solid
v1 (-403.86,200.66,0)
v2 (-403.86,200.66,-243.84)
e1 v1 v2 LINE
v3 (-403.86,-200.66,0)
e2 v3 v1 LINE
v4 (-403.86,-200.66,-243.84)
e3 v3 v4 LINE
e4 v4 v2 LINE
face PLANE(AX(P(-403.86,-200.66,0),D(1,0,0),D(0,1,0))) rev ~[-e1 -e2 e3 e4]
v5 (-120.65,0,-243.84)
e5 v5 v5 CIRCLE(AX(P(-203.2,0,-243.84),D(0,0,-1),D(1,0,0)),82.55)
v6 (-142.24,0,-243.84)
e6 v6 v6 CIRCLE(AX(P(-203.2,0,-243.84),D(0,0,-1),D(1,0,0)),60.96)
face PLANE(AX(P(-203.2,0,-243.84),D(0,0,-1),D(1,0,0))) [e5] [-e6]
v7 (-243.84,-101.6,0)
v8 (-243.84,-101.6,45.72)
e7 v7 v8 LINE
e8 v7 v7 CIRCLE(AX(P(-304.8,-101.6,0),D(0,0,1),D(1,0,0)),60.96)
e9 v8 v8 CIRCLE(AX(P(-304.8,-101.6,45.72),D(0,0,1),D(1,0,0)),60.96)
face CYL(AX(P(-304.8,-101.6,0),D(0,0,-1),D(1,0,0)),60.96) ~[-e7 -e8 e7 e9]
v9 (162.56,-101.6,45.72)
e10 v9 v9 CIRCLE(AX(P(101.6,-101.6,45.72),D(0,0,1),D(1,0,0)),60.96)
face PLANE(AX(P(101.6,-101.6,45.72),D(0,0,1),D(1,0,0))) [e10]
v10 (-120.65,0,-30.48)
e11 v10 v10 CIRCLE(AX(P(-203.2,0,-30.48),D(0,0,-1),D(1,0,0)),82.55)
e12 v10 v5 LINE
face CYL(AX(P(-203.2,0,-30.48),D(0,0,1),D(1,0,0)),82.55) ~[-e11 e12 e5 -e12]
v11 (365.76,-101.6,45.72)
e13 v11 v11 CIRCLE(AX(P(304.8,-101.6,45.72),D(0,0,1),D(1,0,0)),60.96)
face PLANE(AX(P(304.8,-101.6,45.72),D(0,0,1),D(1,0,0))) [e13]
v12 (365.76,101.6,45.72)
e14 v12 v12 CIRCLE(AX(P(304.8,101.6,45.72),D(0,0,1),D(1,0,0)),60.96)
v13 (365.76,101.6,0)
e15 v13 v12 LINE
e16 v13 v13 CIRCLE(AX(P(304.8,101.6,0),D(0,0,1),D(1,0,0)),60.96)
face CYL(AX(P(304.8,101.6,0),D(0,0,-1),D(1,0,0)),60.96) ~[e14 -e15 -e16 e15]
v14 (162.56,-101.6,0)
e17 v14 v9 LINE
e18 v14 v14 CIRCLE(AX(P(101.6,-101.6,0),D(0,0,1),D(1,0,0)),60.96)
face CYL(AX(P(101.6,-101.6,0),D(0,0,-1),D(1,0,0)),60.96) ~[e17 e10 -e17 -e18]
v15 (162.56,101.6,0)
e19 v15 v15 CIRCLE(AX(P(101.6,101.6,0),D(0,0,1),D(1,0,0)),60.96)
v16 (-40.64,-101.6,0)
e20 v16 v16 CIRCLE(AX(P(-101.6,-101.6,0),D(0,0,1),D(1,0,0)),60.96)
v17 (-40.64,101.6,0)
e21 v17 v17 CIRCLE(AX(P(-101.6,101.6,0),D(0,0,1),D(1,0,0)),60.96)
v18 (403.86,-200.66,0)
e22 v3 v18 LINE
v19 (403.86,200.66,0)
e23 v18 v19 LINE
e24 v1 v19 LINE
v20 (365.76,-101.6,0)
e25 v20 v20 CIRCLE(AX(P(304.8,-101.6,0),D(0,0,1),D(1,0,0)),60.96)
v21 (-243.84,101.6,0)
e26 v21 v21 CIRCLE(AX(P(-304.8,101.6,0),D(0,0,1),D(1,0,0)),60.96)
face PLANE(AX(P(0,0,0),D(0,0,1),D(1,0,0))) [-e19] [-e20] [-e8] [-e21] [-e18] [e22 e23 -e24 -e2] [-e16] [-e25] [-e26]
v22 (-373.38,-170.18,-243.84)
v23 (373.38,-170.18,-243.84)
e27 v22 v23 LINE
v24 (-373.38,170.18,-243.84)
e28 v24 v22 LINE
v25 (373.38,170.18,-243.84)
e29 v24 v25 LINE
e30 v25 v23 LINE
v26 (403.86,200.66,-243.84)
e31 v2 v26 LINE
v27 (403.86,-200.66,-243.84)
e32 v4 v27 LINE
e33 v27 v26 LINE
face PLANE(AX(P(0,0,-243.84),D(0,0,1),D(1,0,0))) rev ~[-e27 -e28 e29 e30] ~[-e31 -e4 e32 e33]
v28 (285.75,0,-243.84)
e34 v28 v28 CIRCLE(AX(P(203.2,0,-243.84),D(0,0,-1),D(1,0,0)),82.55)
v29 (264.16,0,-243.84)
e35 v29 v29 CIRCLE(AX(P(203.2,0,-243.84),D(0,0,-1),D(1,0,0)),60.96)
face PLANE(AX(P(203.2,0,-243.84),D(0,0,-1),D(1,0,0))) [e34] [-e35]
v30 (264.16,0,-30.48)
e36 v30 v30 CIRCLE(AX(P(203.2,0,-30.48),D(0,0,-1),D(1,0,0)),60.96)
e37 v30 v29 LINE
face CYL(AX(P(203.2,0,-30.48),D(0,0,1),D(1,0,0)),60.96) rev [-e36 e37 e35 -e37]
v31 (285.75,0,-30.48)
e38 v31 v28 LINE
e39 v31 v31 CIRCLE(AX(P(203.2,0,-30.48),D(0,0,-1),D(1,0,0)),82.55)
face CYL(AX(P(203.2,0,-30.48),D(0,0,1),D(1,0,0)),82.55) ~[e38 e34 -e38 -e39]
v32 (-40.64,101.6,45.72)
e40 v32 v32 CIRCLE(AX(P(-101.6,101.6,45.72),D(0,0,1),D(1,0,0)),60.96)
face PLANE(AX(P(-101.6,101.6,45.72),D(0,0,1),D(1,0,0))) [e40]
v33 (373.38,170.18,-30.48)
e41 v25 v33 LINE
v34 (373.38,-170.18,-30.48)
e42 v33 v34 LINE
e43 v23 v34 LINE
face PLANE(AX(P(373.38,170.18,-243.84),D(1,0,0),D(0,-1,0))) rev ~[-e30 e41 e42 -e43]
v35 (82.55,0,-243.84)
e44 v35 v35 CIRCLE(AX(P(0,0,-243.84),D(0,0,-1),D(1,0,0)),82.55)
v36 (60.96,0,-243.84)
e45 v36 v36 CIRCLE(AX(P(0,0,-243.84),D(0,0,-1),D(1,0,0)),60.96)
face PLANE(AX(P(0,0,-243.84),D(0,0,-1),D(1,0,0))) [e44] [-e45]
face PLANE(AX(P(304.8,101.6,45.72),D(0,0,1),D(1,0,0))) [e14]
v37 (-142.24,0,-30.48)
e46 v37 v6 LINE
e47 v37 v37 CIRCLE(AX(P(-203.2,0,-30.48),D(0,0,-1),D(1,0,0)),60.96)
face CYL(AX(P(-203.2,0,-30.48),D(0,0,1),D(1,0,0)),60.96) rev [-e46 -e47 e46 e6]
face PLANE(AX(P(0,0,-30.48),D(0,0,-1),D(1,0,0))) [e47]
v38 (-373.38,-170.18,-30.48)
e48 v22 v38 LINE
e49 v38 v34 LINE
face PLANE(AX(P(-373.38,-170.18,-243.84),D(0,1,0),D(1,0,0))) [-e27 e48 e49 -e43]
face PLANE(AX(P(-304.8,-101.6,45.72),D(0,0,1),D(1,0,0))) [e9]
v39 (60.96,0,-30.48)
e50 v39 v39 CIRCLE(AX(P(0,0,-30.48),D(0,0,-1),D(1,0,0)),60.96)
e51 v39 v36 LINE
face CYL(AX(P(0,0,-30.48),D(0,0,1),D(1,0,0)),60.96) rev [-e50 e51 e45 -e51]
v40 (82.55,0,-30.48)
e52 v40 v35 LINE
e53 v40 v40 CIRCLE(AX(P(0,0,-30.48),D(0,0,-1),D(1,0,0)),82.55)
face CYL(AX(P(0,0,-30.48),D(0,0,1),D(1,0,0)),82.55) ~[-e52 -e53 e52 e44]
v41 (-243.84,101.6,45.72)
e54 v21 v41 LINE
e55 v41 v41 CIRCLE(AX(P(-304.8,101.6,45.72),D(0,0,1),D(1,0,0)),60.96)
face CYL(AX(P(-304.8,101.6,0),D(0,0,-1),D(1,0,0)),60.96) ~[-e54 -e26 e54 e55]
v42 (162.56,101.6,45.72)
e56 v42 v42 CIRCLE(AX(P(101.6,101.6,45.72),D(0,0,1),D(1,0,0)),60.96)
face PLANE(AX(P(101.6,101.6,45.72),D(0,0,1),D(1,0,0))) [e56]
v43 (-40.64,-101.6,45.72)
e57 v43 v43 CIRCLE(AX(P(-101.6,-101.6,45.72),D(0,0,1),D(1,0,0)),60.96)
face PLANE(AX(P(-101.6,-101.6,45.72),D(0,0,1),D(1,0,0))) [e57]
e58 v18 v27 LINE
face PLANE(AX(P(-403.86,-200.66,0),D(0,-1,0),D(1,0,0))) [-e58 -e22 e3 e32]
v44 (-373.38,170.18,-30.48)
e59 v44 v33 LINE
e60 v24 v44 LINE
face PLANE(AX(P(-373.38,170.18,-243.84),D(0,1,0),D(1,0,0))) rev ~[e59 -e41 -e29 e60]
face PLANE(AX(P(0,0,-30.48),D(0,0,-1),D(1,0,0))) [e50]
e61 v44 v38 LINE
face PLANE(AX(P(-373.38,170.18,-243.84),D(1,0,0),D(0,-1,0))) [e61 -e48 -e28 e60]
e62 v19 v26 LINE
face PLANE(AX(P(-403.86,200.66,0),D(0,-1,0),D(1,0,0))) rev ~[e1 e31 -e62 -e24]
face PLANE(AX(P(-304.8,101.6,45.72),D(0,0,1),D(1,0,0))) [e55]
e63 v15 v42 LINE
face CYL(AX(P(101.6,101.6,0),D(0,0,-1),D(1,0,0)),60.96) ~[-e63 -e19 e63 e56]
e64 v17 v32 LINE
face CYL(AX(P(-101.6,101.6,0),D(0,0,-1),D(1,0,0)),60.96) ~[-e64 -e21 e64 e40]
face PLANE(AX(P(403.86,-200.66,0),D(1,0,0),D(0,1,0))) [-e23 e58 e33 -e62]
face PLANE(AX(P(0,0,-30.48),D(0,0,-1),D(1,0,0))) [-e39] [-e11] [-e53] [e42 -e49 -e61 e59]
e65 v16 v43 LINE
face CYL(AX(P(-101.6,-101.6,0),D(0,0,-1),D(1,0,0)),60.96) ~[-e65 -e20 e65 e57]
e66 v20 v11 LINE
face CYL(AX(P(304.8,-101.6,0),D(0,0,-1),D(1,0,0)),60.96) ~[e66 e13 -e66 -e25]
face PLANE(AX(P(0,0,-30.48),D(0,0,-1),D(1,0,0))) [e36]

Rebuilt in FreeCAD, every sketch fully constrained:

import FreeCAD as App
import Part
import Sketcher

V = App.Vector
Q = App.Units.Quantity

doc = App.newDocument("Part")
params = doc.addObject("Spreadsheet::Sheet", "Params")
for row, (alias, value) in enumerate([
    ("sketch1_width", "31.8 in"),
    ("sketch1_height", "15.8 in"),
    ("pad1_length", "9.6 in"),
    ("sketch2_diameter", "4.8 in"),
    ("pad2_length", "1.8 in"),
    ("sketch3_width", "29.4 in"),
    ("sketch3_height", "13.4 in"),
    ("pocket1_length", "8.4 in"),
    ("sketch4_diameter", "6.5 in"),
    ("sketch4_diameter2", "4.8 in"),
    ("pad3_length", "8.4 in"),
], start=1):
    params.set(f"A{row}", alias)
    params.set(f"B{row}", "=" + value)
    params.setAlias(f"B{row}", alias)

body = doc.addObject("PartDesign::Body", "Body")

sketch1 = body.newObject("Sketcher::SketchObject", "Sketch")
sketch1.AttachmentSupport = (doc.getObject("XY_Plane"), [""])
sketch1.MapMode = "FlatFace"
sketch1.addGeometry([
    Part.LineSegment(V(-404, 201, 0), V(-404, -201, 0)),
    Part.LineSegment(V(-404, -201, 0), V(404, -201, 0)),
    Part.LineSegment(V(404, -201, 0), V(404, 201, 0)),
    Part.LineSegment(V(404, 201, 0), V(-404, 201, 0)),
], False)
sketch1.addConstraint([
    Sketcher.Constraint("Coincident", 0, 2, 1, 1),
    Sketcher.Constraint("Coincident", 1, 2, 2, 1),
    Sketcher.Constraint("Coincident", 2, 2, 3, 1),
    Sketcher.Constraint("Coincident", 3, 2, 0, 1),
    Sketcher.Constraint("Vertical", 0),
    Sketcher.Constraint("Horizontal", 1),
    Sketcher.Constraint("Vertical", 2),
    Sketcher.Constraint("Horizontal", 3),
    Sketcher.Constraint("Symmetric", 0, 2, 2, 2, -1, 1),
    Sketcher.Constraint("DistanceX", 1, 1, 1, 2, Q("31.8 in")),
    Sketcher.Constraint("DistanceY", 0, 2, 0, 1, Q("15.8 in")),
])
sketch1.setExpression("Constraints[9]", "Params.sketch1_width")
sketch1.setExpression("Constraints[10]", "Params.sketch1_height")
pad1 = body.newObject("PartDesign::Pad", "Pad")
pad1.Profile = sketch1
pad1.setExpression("Length", "Params.pad1_length")
pad1.Reversed = True

sketch2 = body.newObject("Sketcher::SketchObject", "Sketch001")
sketch2.AttachmentSupport = (doc.getObject("XY_Plane"), [""])
sketch2.MapMode = "FlatFace"
sketch2.addGeometry([
    Part.Circle(V(-305, 102, 0), V(0, 0, 1), 61),
    Part.Circle(V(-102, 102, 0), V(0, 0, 1), 61),
    Part.Circle(V(102, 102, 0), V(0, 0, 1), 61),
    Part.Circle(V(305, 102, 0), V(0, 0, 1), 61),
    Part.Circle(V(305, -102, 0), V(0, 0, 1), 61),
    Part.Circle(V(102, -102, 0), V(0, 0, 1), 61),
    Part.Circle(V(-102, -102, 0), V(0, 0, 1), 61),
    Part.Circle(V(-305, -102, 0), V(0, 0, 1), 61),
], False)
sketch2.addConstraint([
    Sketcher.Constraint("Equal", 0, 1),
    Sketcher.Constraint("Equal", 1, 2),
    Sketcher.Constraint("Equal", 2, 3),
    Sketcher.Constraint("Equal", 3, 4),
    Sketcher.Constraint("Equal", 4, 5),
    Sketcher.Constraint("Equal", 5, 6),
    Sketcher.Constraint("Equal", 6, 7),
    Sketcher.Constraint("Symmetric", 0, 3, 4, 3, -1, 1),
    Sketcher.Constraint("Symmetric", 1, 3, 5, 3, -1, 1),
    Sketcher.Constraint("Symmetric", 2, 3, 6, 3, -1, 1),
    Sketcher.Constraint("Symmetric", 3, 3, 7, 3, -1, 1),
    Sketcher.Constraint("Symmetric", 1, 3, 2, 3, -2),
    Sketcher.Constraint("Symmetric", 0, 3, 3, 3, -2),
    Sketcher.Constraint("Horizontal", 0, 3, 1, 3),
    Sketcher.Constraint("Diameter", 0, Q("4.8 in")),
    Sketcher.Constraint("DistanceX", 0, 3, -1, 1, Q("12 in")),
    Sketcher.Constraint("DistanceY", -1, 1, 0, 3, Q("4 in")),
    Sketcher.Constraint("DistanceX", 1, 3, -1, 1, Q("4 in")),
])
sketch2.setExpression("Constraints[14]", "Params.sketch2_diameter")
pad2 = body.newObject("PartDesign::Pad", "Pad001")
pad2.Profile = sketch2
pad2.setExpression("Length", "Params.pad2_length")

sketch3 = body.newObject("Sketcher::SketchObject", "Sketch002")
sketch3.AttachmentSupport = (doc.getObject("XY_Plane"), [""])
sketch3.MapMode = "FlatFace"
sketch3.AttachmentOffset = App.Placement(V(0, 0, -9.6 * 25.4), App.Rotation())
sketch3.addGeometry([
    Part.LineSegment(V(-373, -170, 0), V(-373, 170, 0)),
    Part.LineSegment(V(-373, 170, 0), V(373, 170, 0)),
    Part.LineSegment(V(373, 170, 0), V(373, -170, 0)),
    Part.LineSegment(V(373, -170, 0), V(-373, -170, 0)),
], False)
sketch3.addConstraint([
    Sketcher.Constraint("Coincident", 0, 2, 1, 1),
    Sketcher.Constraint("Coincident", 1, 2, 2, 1),
    Sketcher.Constraint("Coincident", 2, 2, 3, 1),
    Sketcher.Constraint("Coincident", 3, 2, 0, 1),
    Sketcher.Constraint("Vertical", 0),
    Sketcher.Constraint("Horizontal", 1),
    Sketcher.Constraint("Vertical", 2),
    Sketcher.Constraint("Horizontal", 3),
    Sketcher.Constraint("Symmetric", 0, 2, 2, 2, -1, 1),
    Sketcher.Constraint("DistanceX", 1, 1, 1, 2, Q("29.4 in")),
    Sketcher.Constraint("DistanceY", 0, 1, 0, 2, Q("13.4 in")),
])
sketch3.setExpression("Constraints[9]", "Params.sketch3_width")
sketch3.setExpression("Constraints[10]", "Params.sketch3_height")
pocket1 = body.newObject("PartDesign::Pocket", "Pocket")
pocket1.Profile = sketch3
pocket1.setExpression("Length", "Params.pocket1_length")
pocket1.Reversed = True

sketch4 = body.newObject("Sketcher::SketchObject", "Sketch003")
sketch4.AttachmentSupport = (doc.getObject("XY_Plane"), [""])
sketch4.MapMode = "FlatFace"
sketch4.AttachmentOffset = App.Placement(V(0, 0, -1.2 * 25.4), App.Rotation())
sketch4.addGeometry([
    Part.Circle(V(-203, 0, 0), V(0, 0, 1), 83),
    Part.Circle(V(-203, 0, 0), V(0, 0, 1), 61),
    Part.Circle(V(0, 0, 0), V(0, 0, 1), 83),
    Part.Circle(V(0, 0, 0), V(0, 0, 1), 61),
    Part.Circle(V(203, 0, 0), V(0, 0, 1), 83),
    Part.Circle(V(203, 0, 0), V(0, 0, 1), 61),
], False)
sketch4.addConstraint([
    Sketcher.Constraint("Coincident", 2, 3, -1, 1),
    Sketcher.Constraint("Coincident", 3, 3, -1, 1),
    Sketcher.Constraint("Coincident", 1, 3, 0, 3),
    Sketcher.Constraint("Coincident", 5, 3, 4, 3),
    Sketcher.Constraint("Equal", 0, 2),
    Sketcher.Constraint("Equal", 1, 3),
    Sketcher.Constraint("Equal", 2, 4),
    Sketcher.Constraint("Equal", 3, 5),
    Sketcher.Constraint("Symmetric", 0, 3, 4, 3, -1, 1),
    Sketcher.Constraint("PointOnObject", 0, 3, -1),
    Sketcher.Constraint("Diameter", 0, Q("6.5 in")),
    Sketcher.Constraint("Diameter", 1, Q("4.8 in")),
    Sketcher.Constraint("DistanceX", 0, 3, -1, 1, Q("8 in")),
])
sketch4.setExpression("Constraints[10]", "Params.sketch4_diameter")
sketch4.setExpression("Constraints[11]", "Params.sketch4_diameter2")
pad3 = body.newObject("PartDesign::Pad", "Pad002")
pad3.Profile = sketch4
pad3.setExpression("Length", "Params.pad3_length")
pad3.Reversed = True

doc.recompute()
